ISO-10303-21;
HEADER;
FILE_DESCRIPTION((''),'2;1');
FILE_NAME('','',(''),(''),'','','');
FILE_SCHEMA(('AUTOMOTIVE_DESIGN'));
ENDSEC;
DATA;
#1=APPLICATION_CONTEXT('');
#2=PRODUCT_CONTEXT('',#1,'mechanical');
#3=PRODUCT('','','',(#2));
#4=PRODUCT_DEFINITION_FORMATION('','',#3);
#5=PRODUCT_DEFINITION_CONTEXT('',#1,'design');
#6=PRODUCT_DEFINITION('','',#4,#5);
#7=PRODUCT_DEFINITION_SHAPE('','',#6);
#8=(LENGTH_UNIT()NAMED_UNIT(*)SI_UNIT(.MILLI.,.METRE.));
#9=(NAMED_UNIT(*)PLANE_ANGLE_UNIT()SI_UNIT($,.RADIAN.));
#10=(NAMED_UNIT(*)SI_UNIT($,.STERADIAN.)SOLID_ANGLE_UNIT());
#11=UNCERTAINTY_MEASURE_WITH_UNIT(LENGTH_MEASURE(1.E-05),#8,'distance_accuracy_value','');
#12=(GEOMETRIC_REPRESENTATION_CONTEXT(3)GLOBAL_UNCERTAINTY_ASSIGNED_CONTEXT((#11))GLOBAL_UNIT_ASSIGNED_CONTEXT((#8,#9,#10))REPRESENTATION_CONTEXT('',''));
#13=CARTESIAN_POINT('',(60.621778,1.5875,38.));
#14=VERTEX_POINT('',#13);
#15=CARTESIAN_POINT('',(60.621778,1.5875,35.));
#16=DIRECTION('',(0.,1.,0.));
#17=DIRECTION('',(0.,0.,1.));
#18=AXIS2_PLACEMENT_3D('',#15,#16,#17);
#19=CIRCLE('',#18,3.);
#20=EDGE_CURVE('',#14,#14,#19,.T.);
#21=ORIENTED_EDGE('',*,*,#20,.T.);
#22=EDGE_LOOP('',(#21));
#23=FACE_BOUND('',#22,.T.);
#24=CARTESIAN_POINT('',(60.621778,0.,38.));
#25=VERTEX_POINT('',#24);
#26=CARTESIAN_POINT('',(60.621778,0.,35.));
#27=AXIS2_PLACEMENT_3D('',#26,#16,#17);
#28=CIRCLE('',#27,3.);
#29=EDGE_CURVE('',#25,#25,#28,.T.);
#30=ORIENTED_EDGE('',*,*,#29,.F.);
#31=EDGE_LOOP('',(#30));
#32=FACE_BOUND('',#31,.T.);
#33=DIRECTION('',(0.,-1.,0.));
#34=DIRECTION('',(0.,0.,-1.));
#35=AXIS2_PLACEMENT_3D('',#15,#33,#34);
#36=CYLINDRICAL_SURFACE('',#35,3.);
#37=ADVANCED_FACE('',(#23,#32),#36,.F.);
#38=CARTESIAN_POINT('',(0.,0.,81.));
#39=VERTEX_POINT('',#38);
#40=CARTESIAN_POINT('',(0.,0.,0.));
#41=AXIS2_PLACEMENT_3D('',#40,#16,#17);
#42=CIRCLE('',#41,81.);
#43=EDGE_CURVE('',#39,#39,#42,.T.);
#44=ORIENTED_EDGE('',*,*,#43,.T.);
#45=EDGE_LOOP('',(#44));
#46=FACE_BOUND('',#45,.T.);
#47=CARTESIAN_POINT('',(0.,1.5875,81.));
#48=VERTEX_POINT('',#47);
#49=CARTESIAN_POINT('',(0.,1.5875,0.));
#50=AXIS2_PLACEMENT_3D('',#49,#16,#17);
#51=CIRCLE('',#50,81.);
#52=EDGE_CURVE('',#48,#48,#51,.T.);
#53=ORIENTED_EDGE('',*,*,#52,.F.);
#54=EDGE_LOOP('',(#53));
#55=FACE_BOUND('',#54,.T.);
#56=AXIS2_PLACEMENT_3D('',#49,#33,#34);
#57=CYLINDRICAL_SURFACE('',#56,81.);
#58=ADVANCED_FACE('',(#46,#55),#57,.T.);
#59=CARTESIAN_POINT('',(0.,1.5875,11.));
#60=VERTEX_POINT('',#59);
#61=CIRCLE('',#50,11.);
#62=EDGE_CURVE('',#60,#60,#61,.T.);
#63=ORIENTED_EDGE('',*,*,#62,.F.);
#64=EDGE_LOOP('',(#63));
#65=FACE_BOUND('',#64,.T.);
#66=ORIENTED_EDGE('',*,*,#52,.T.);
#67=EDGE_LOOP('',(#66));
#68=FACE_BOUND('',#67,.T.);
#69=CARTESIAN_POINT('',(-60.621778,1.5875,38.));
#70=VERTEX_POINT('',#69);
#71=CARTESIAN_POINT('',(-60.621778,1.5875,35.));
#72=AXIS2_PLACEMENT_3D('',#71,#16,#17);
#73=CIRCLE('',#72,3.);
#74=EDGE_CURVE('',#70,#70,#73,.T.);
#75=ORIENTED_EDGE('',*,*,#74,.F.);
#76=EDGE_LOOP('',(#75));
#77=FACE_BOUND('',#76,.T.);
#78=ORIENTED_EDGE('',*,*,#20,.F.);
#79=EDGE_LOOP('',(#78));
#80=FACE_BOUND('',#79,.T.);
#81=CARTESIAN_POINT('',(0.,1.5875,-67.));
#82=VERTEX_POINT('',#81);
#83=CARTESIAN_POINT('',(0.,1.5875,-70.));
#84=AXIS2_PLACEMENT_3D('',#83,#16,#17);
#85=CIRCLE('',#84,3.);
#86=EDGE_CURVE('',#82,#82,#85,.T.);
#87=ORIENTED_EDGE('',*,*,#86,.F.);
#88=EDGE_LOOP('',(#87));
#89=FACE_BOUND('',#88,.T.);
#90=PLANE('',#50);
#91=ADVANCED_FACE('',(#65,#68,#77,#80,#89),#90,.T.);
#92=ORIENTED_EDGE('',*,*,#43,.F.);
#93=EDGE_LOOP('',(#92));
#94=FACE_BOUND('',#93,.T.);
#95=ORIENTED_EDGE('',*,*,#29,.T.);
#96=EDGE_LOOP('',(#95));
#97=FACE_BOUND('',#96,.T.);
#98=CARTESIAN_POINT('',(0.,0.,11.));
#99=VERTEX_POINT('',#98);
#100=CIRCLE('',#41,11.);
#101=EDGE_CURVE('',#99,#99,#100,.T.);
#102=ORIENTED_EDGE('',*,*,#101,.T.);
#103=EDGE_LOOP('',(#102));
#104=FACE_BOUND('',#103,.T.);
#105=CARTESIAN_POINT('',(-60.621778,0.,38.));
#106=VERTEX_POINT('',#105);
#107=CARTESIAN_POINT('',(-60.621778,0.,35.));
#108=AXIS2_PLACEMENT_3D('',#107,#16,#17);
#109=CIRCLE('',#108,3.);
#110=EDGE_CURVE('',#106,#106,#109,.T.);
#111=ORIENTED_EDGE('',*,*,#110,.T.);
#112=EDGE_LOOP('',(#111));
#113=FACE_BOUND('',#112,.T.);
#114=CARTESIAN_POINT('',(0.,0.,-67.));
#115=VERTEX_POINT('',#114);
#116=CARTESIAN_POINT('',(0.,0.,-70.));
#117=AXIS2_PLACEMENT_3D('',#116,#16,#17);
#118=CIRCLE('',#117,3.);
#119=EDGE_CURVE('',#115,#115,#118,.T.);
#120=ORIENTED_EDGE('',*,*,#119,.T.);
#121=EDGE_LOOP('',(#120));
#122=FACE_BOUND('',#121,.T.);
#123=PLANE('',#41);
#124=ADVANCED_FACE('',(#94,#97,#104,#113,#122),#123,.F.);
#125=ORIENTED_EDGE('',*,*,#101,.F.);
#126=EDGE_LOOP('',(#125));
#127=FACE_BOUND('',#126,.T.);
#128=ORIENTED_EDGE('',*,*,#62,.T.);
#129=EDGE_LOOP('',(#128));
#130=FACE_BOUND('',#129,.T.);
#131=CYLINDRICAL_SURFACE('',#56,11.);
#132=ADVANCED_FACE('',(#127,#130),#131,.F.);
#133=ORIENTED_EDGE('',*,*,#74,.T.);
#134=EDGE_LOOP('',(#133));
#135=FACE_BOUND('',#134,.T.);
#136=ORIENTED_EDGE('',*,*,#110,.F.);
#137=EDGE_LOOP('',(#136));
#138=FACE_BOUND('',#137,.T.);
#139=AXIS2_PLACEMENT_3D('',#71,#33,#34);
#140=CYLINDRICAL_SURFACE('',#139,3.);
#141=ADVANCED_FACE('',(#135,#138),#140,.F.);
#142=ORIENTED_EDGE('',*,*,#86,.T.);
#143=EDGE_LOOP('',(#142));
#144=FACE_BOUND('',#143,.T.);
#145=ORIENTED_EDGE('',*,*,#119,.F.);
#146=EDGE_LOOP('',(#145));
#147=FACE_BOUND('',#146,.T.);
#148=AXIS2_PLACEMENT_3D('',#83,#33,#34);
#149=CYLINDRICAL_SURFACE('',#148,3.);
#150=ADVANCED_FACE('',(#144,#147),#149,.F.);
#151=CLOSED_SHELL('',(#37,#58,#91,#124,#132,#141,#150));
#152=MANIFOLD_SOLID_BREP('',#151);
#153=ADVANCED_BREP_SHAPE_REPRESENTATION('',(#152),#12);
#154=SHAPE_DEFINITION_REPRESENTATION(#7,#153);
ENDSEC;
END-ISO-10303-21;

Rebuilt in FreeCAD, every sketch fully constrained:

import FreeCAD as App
import Part
import Sketcher

V = App.Vector
Q = App.Units.Quantity

doc = App.newDocument("Part")
body = doc.addObject("PartDesign::Body", "Body")

# Sketch on XZ plane
sketch1 = doc.addObject("Sketcher::SketchObject", "Sketch")
body.addObject(sketch1)
sketch1.AttachmentSupport = (doc.XZ_Plane, [""])
sketch1.MapMode = "FlatFace"
sketch1.addGeometry(Part.Circle(V(0, 0, 0), V(0, 0, 1), 81), False)
sketch1.addGeometry(Part.Circle(V(-60.6, 35, 0), V(0, 0, 1), 3), False)
sketch1.addGeometry(Part.Circle(V(0, 0, 0), V(0, 0, 1), 11), False)
sketch1.addGeometry(Part.Circle(V(60.6, 35, 0), V(0, 0, 1), 3), False)
sketch1.addGeometry(Part.Circle(V(0, -70, 0), V(0, 0, 1), 3), False)
sketch1.addConstraint(Sketcher.Constraint("Coincident", 0, 3, -1, 1))
sketch1.addConstraint(Sketcher.Constraint("Coincident", 2, 3, -1, 1))
sketch1.addConstraint(Sketcher.Constraint("Equal", 1, 3))
sketch1.addConstraint(Sketcher.Constraint("Equal", 3, 4))
sketch1.addConstraint(Sketcher.Constraint("Symmetric", 1, 3, 3, 3, -2))
sketch1.addConstraint(Sketcher.Constraint("PointOnObject", 4, 3, -2))
sketch1.addConstraint(Sketcher.Constraint("Diameter", 0, Q("162 mm")))
sketch1.addConstraint(Sketcher.Constraint("Diameter", 1, Q("6 mm")))
sketch1.addConstraint(Sketcher.Constraint("Diameter", 2, Q("22 mm")))
sketch1.addConstraint(Sketcher.Constraint("DistanceY", -1, 1, 1, 3, Q("35 mm")))
sketch1.addConstraint(Sketcher.Constraint("DistanceY", 4, 3, -1, 1, Q("70 mm")))
sketch1.addConstraint(Sketcher.Constraint("DistanceX", 1, 3, -1, 1, Q("60.621778 mm")))
pad1 = doc.addObject("PartDesign::Pad", "Pad")
body.addObject(pad1)
pad1.Profile = sketch1
pad1.Length = 1.5875
pad1.Reversed = True

doc.recompute()
